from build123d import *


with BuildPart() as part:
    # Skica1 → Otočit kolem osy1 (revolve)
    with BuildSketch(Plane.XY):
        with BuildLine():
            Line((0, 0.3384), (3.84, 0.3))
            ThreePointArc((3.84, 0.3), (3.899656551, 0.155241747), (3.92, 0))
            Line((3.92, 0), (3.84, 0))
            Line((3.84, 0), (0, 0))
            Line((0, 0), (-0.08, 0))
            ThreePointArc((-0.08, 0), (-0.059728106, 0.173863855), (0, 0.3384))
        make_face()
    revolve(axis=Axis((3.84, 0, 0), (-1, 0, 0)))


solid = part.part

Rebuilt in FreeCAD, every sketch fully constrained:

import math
import FreeCAD as App
import Part
import Sketcher
Q = App.Units.Quantity

doc = App.newDocument("Part")
body = doc.addObject("PartDesign::Body", "Body")

sketch1 = body.newObject("Sketcher::SketchObject", "Sketch")
sketch1.AttachmentSupport = (doc.getObject("XY_Plane"), [""])
sketch1.MapMode = "FlatFace"
sketch1.addGeometry([
    Part.LineSegment(App.Vector(3.84, 0.3, 0), App.Vector(0, 0.34, 0)),
    Part.ArcOfCircle(Part.Circle(App.Vector(0.68, 0, 0), App.Vector(0, 0, 1), 0.76), math.radians(153), math.radians(180)),
    Part.LineSegment(App.Vector(-0.08, 0, 0), App.Vector(3.92, 0, 0)),
    Part.ArcOfCircle(Part.Circle(App.Vector(3.32, 0, 0), App.Vector(0, 0, 1), 0.6), math.radians(0), math.radians(30)),
], False)
sketch1.addConstraint([
    Sketcher.Constraint("Coincident", 0, 2, 1, 1),
    Sketcher.Constraint("Coincident", 1, 2, 2, 1),
    Sketcher.Constraint("Coincident", 2, 2, 3, 1),
    Sketcher.Constraint("Coincident", 3, 2, 0, 1),
    Sketcher.Constraint("Horizontal", 2),
    Sketcher.Constraint("PointOnObject", 1, 3, -1),
    Sketcher.Constraint("PointOnObject", 3, 3, -1),
    Sketcher.Constraint("PointOnObject", 0, 2, -2),
    Sketcher.Constraint("PointOnObject", 1, 2, -1),
    Sketcher.Constraint("DistanceX", 2, 1, 2, 2, Q("4 mm")),
    Sketcher.Constraint("DistanceY", -1, 1, 3, 2, Q("0.3 mm")),
    Sketcher.Constraint("Radius", 3, Q("0.6025 mm")),
    Sketcher.Constraint("DistanceX", 1, 2, -1, 1, Q("0.08 mm")),
    Sketcher.Constraint("Radius", 1, Q("0.755716 mm")),
])
revolution = body.newObject("PartDesign::Revolution", "Revolution")
revolution.Profile = sketch1
revolution.ReferenceAxis = (sketch1, ["H_Axis"])
revolution.Angle = 360

doc.recompute()
